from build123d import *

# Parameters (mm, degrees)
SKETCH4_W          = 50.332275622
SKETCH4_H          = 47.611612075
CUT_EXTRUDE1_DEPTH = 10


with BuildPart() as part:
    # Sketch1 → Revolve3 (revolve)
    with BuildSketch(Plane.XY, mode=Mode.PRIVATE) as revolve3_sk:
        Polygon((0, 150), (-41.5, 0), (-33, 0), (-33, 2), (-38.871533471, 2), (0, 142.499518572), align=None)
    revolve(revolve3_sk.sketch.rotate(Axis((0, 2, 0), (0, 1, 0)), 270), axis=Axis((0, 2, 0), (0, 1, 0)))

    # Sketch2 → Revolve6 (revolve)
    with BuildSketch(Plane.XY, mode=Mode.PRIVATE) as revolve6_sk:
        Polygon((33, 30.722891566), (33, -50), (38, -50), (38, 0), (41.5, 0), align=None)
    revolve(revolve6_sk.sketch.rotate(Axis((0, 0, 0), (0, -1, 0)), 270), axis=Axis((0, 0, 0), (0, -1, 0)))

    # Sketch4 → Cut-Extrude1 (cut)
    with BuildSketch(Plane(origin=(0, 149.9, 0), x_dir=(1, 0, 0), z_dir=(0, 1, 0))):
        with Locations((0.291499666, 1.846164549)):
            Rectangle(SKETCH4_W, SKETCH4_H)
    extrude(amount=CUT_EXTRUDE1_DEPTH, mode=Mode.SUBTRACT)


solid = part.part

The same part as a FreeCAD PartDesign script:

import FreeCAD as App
import Part
import Sketcher

V = App.Vector

doc = App.newDocument("Part")
body = doc.addObject("PartDesign::Body", "Body")

sketch1 = body.newObject("Sketcher::SketchObject", "Sketch")
sketch1.AttachmentSupport = (doc.getObject("XY_Plane"), [""])
sketch1.MapMode = "FlatFace"
sketch1.addGeometry(Part.LineSegment(V(0, 150, 0), V(-41.5, 0, 0)), False)
sketch1.addGeometry(Part.LineSegment(V(-41.5, 0, 0), V(-33, 0, 0)), False)
sketch1.addGeometry(Part.LineSegment(V(-33, 0, 0), V(-33, 2, 0)), False)
sketch1.addGeometry(Part.LineSegment(V(-33, 2, 0), V(-38.9, 2, 0)), False)
sketch1.addGeometry(Part.LineSegment(V(-38.9, 2, 0), V(0, 142.5, 0)), False)
sketch1.addGeometry(Part.LineSegment(V(0, 142.5, 0), V(0, 150, 0)), False)
sketch1.addConstraint(Sketcher.Constraint("Coincident", 0, 2, 1, 1))
sketch1.addConstraint(Sketcher.Constraint("Coincident", 1, 2, 2, 1))
sketch1.addConstraint(Sketcher.Constraint("Coincident", 2, 2, 3, 1))
sketch1.addConstraint(Sketcher.Constraint("Coincident", 3, 2, 4, 1))
sketch1.addConstraint(Sketcher.Constraint("Coincident", 4, 2, 5, 1))
sketch1.addConstraint(Sketcher.Constraint("Coincident", 5, 2, 0, 1))
sketch1.addConstraint(Sketcher.Constraint("Horizontal", 1))
sketch1.addConstraint(Sketcher.Constraint("Vertical", 2))
sketch1.addConstraint(Sketcher.Constraint("Horizontal", 3))
sketch1.addConstraint(Sketcher.Constraint("Vertical", 5))
sketch1.addConstraint(Sketcher.Constraint("PointOnObject", 0, 2, -1))
sketch1.addConstraint(Sketcher.Constraint("PointOnObject", 4, 2, -2))
sketch1.addConstraint(Sketcher.Constraint("Parallel", 0, 4))
sketch1.addConstraint(Sketcher.Constraint("DistanceY", 2, 1, 2, 2, 2.0))
sketch1.addConstraint(Sketcher.Constraint("DistanceX", 1, 1, 1, 2, 8.5))
sketch1.addConstraint(Sketcher.Constraint("DistanceX", 1, 2, -1, 1, 33.0))
sketch1.addConstraint(Sketcher.Constraint("DistanceY", -1, 1, 5, 2, 150.0))
sketch1.addConstraint(Sketcher.Constraint("DistanceY", 5, 1, 5, 2, 7.500481))
revolution = body.newObject("PartDesign::Revolution", "Revolution")
revolution.Profile = sketch1
revolution.ReferenceAxis = (sketch1, ["V_Axis"])
revolution.Angle = 360

sketch2 = body.newObject("Sketcher::SketchObject", "Sketch001")
sketch2.AttachmentSupport = (doc.getObject("XY_Plane"), [""])
sketch2.MapMode = "FlatFace"
sketch2.addGeometry(Part.LineSegment(V(33, 30.7, 0), V(33, -50, 0)), False)
sketch2.addGeometry(Part.LineSegment(V(33, -50, 0), V(38, -50, 0)), False)
sketch2.addGeometry(Part.LineSegment(V(38, -50, 0), V(38, 0, 0)), False)
sketch2.addGeometry(Part.LineSegment(V(38, 0, 0), V(41.5, 0, 0)), False)
sketch2.addGeometry(Part.LineSegment(V(41.5, 0, 0), V(33, 30.7, 0)), False)
sketch2.addConstraint(Sketcher.Constraint("Coincident", 0, 2, 1, 1))
sketch2.addConstraint(Sketcher.Constraint("Coincident", 1, 2, 2, 1))
sketch2.addConstraint(Sketcher.Constraint("Coincident", 2, 2, 3, 1))
sketch2.addConstraint(Sketcher.Constraint("Coincident", 3, 2, 4, 1))
sketch2.addConstraint(Sketcher.Constraint("Coincident", 4, 2, 0, 1))
sketch2.addConstraint(Sketcher.Constraint("Vertical", 0))
sketch2.addConstraint(Sketcher.Constraint("Horizontal", 1))
sketch2.addConstraint(Sketcher.Constraint("Vertical", 2))
sketch2.addConstraint(Sketcher.Constraint("Horizontal", 3))
sketch2.addConstraint(Sketcher.Constraint("PointOnObject", 2, 2, -1))
sketch2.addConstraint(Sketcher.Constraint("DistanceX", 1, 1, 1, 2, 5.0))
sketch2.addConstraint(Sketcher.Constraint("DistanceY", 2, 1, 2, 2, 50.0))
sketch2.addConstraint(Sketcher.Constraint("DistanceX", 3, 1, 3, 2, 3.5))
sketch2.addConstraint(Sketcher.Constraint("DistanceX", -1, 1, 0, 2, 33.0))
sketch2.addConstraint(Sketcher.Constraint("DistanceY", 0, 2, 0, 1, 80.722892))
revolution2 = body.newObject("PartDesign::Revolution", "Revolution001")
revolution2.Profile = sketch2
revolution2.ReferenceAxis = (sketch2, ["V_Axis"])
revolution2.Angle = 360

sketch3 = body.newObject("Sketcher::SketchObject", "Sketch002")
sketch3.AttachmentSupport = (doc.getObject("XZ_Plane"), [""])
sketch3.MapMode = "FlatFace"
sketch3.AttachmentOffset = App.Placement(V(0, 0, -149.9), App.Rotation())
sketch3.addGeometry(Part.LineSegment(V(-25, -26, 0), V(-25, 22, 0)), False)
sketch3.addGeometry(Part.LineSegment(V(-25, 22, 0), V(25, 22, 0)), False)
sketch3.addGeometry(Part.LineSegment(V(25, 22, 0), V(25, -26, 0)), False)
sketch3.addGeometry(Part.LineSegment(V(25, -26, 0), V(-25, -26, 0)), False)
sketch3.addConstraint(Sketcher.Constraint("Coincident", 0, 2, 1, 1))
sketch3.addConstraint(Sketcher.Constraint("Coincident", 1, 2, 2, 1))
sketch3.addConstraint(Sketcher.Constraint("Coincident", 2, 2, 3, 1))
sketch3.addConstraint(Sketcher.Constraint("Coincident", 3, 2, 0, 1))
sketch3.addConstraint(Sketcher.Constraint("Vertical", 0))
sketch3.addConstraint(Sketcher.Constraint("Horizontal", 1))
sketch3.addConstraint(Sketcher.Constraint("Vertical", 2))
sketch3.addConstraint(Sketcher.Constraint("Horizontal", 3))
sketch3.addConstraint(Sketcher.Constraint("DistanceX", 1, 1, 1, 2, 50.332276))
sketch3.addConstraint(Sketcher.Constraint("DistanceY", 0, 1, 0, 2, 47.611612))
sketch3.addConstraint(Sketcher.Constraint("DistanceX", 0, 2, -1, 1, 24.874638))
sketch3.addConstraint(Sketcher.Constraint("DistanceY", -1, 1, 0, 2, 21.959641))
pocket1 = body.newObject("PartDesign::Pocket", "Pocket")
pocket1.Profile = sketch3
pocket1.Length = 10

doc.recompute()
